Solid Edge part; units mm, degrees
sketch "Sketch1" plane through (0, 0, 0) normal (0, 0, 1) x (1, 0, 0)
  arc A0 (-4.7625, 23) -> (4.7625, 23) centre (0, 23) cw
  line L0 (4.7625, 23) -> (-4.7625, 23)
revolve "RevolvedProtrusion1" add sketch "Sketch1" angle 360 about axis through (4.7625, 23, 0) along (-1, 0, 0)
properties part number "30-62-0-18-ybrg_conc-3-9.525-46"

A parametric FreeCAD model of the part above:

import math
import FreeCAD as App
import Part
import Sketcher

V = App.Vector
Q = App.Units.Quantity

doc = App.newDocument("Part")
params = doc.addObject("Spreadsheet::Sheet", "Params")
for row, (alias, value) in enumerate([
    ("sketch1_radius", "0.1875 in"),
    ("revolution_angle", "360 deg"),
], start=1):
    params.set(f"A{row}", alias)
    params.set(f"B{row}", "=" + value)
    params.setAlias(f"B{row}", alias)

body = doc.addObject("PartDesign::Body", "Body")

sketch1 = doc.addObject("Sketcher::SketchObject", "Sketch")
body.addObject(sketch1)
sketch1.AttachmentSupport = (doc.XY_Plane, [""])
sketch1.MapMode = "FlatFace"
sketch1.addGeometry([
    Part.ArcOfCircle(Part.Circle(V(0, 23, 0), V(0, 0, 1), 4.7625), math.radians(0), math.radians(180)),
    Part.LineSegment(V(-4.7625, 23, 0), V(4.7625, 23, 0)),
], False)
sketch1.addGeometry(Part.LineSegment(V(4.7625, 23, 0), V(-4.7625, 23, 0)), True)
sketch1.addConstraint([
    Sketcher.Constraint("Coincident", 0, 1, 1, 2),
    Sketcher.Constraint("Coincident", 1, 1, 0, 2),
    Sketcher.Constraint("Horizontal", 1),
    Sketcher.Constraint("Horizontal", 2),
    Sketcher.Constraint("Coincident", 2, 1, 0, 1),
    Sketcher.Constraint("PointOnObject", 0, 3, -2),
    Sketcher.Constraint("Equal", 1, 2),
    Sketcher.Constraint("Radius", 0, Q("0.1875 in")),
    Sketcher.Constraint("DistanceY", -1, 1, 0, 3, Q("0.9055 in")),
    Sketcher.Constraint("DistanceY", -1, 1, 0, 1, Q("0.9055 in")),
])
sketch1.setExpression("Constraints[7]", "Params.sketch1_radius")
revolution = doc.addObject("PartDesign::Revolution", "Revolution")
body.addObject(revolution)
revolution.Profile = sketch1
revolution.ReferenceAxis = (sketch1, ["Axis0"])
revolution.setExpression("Angle", "Params.revolution_angle")

doc.recompute()
